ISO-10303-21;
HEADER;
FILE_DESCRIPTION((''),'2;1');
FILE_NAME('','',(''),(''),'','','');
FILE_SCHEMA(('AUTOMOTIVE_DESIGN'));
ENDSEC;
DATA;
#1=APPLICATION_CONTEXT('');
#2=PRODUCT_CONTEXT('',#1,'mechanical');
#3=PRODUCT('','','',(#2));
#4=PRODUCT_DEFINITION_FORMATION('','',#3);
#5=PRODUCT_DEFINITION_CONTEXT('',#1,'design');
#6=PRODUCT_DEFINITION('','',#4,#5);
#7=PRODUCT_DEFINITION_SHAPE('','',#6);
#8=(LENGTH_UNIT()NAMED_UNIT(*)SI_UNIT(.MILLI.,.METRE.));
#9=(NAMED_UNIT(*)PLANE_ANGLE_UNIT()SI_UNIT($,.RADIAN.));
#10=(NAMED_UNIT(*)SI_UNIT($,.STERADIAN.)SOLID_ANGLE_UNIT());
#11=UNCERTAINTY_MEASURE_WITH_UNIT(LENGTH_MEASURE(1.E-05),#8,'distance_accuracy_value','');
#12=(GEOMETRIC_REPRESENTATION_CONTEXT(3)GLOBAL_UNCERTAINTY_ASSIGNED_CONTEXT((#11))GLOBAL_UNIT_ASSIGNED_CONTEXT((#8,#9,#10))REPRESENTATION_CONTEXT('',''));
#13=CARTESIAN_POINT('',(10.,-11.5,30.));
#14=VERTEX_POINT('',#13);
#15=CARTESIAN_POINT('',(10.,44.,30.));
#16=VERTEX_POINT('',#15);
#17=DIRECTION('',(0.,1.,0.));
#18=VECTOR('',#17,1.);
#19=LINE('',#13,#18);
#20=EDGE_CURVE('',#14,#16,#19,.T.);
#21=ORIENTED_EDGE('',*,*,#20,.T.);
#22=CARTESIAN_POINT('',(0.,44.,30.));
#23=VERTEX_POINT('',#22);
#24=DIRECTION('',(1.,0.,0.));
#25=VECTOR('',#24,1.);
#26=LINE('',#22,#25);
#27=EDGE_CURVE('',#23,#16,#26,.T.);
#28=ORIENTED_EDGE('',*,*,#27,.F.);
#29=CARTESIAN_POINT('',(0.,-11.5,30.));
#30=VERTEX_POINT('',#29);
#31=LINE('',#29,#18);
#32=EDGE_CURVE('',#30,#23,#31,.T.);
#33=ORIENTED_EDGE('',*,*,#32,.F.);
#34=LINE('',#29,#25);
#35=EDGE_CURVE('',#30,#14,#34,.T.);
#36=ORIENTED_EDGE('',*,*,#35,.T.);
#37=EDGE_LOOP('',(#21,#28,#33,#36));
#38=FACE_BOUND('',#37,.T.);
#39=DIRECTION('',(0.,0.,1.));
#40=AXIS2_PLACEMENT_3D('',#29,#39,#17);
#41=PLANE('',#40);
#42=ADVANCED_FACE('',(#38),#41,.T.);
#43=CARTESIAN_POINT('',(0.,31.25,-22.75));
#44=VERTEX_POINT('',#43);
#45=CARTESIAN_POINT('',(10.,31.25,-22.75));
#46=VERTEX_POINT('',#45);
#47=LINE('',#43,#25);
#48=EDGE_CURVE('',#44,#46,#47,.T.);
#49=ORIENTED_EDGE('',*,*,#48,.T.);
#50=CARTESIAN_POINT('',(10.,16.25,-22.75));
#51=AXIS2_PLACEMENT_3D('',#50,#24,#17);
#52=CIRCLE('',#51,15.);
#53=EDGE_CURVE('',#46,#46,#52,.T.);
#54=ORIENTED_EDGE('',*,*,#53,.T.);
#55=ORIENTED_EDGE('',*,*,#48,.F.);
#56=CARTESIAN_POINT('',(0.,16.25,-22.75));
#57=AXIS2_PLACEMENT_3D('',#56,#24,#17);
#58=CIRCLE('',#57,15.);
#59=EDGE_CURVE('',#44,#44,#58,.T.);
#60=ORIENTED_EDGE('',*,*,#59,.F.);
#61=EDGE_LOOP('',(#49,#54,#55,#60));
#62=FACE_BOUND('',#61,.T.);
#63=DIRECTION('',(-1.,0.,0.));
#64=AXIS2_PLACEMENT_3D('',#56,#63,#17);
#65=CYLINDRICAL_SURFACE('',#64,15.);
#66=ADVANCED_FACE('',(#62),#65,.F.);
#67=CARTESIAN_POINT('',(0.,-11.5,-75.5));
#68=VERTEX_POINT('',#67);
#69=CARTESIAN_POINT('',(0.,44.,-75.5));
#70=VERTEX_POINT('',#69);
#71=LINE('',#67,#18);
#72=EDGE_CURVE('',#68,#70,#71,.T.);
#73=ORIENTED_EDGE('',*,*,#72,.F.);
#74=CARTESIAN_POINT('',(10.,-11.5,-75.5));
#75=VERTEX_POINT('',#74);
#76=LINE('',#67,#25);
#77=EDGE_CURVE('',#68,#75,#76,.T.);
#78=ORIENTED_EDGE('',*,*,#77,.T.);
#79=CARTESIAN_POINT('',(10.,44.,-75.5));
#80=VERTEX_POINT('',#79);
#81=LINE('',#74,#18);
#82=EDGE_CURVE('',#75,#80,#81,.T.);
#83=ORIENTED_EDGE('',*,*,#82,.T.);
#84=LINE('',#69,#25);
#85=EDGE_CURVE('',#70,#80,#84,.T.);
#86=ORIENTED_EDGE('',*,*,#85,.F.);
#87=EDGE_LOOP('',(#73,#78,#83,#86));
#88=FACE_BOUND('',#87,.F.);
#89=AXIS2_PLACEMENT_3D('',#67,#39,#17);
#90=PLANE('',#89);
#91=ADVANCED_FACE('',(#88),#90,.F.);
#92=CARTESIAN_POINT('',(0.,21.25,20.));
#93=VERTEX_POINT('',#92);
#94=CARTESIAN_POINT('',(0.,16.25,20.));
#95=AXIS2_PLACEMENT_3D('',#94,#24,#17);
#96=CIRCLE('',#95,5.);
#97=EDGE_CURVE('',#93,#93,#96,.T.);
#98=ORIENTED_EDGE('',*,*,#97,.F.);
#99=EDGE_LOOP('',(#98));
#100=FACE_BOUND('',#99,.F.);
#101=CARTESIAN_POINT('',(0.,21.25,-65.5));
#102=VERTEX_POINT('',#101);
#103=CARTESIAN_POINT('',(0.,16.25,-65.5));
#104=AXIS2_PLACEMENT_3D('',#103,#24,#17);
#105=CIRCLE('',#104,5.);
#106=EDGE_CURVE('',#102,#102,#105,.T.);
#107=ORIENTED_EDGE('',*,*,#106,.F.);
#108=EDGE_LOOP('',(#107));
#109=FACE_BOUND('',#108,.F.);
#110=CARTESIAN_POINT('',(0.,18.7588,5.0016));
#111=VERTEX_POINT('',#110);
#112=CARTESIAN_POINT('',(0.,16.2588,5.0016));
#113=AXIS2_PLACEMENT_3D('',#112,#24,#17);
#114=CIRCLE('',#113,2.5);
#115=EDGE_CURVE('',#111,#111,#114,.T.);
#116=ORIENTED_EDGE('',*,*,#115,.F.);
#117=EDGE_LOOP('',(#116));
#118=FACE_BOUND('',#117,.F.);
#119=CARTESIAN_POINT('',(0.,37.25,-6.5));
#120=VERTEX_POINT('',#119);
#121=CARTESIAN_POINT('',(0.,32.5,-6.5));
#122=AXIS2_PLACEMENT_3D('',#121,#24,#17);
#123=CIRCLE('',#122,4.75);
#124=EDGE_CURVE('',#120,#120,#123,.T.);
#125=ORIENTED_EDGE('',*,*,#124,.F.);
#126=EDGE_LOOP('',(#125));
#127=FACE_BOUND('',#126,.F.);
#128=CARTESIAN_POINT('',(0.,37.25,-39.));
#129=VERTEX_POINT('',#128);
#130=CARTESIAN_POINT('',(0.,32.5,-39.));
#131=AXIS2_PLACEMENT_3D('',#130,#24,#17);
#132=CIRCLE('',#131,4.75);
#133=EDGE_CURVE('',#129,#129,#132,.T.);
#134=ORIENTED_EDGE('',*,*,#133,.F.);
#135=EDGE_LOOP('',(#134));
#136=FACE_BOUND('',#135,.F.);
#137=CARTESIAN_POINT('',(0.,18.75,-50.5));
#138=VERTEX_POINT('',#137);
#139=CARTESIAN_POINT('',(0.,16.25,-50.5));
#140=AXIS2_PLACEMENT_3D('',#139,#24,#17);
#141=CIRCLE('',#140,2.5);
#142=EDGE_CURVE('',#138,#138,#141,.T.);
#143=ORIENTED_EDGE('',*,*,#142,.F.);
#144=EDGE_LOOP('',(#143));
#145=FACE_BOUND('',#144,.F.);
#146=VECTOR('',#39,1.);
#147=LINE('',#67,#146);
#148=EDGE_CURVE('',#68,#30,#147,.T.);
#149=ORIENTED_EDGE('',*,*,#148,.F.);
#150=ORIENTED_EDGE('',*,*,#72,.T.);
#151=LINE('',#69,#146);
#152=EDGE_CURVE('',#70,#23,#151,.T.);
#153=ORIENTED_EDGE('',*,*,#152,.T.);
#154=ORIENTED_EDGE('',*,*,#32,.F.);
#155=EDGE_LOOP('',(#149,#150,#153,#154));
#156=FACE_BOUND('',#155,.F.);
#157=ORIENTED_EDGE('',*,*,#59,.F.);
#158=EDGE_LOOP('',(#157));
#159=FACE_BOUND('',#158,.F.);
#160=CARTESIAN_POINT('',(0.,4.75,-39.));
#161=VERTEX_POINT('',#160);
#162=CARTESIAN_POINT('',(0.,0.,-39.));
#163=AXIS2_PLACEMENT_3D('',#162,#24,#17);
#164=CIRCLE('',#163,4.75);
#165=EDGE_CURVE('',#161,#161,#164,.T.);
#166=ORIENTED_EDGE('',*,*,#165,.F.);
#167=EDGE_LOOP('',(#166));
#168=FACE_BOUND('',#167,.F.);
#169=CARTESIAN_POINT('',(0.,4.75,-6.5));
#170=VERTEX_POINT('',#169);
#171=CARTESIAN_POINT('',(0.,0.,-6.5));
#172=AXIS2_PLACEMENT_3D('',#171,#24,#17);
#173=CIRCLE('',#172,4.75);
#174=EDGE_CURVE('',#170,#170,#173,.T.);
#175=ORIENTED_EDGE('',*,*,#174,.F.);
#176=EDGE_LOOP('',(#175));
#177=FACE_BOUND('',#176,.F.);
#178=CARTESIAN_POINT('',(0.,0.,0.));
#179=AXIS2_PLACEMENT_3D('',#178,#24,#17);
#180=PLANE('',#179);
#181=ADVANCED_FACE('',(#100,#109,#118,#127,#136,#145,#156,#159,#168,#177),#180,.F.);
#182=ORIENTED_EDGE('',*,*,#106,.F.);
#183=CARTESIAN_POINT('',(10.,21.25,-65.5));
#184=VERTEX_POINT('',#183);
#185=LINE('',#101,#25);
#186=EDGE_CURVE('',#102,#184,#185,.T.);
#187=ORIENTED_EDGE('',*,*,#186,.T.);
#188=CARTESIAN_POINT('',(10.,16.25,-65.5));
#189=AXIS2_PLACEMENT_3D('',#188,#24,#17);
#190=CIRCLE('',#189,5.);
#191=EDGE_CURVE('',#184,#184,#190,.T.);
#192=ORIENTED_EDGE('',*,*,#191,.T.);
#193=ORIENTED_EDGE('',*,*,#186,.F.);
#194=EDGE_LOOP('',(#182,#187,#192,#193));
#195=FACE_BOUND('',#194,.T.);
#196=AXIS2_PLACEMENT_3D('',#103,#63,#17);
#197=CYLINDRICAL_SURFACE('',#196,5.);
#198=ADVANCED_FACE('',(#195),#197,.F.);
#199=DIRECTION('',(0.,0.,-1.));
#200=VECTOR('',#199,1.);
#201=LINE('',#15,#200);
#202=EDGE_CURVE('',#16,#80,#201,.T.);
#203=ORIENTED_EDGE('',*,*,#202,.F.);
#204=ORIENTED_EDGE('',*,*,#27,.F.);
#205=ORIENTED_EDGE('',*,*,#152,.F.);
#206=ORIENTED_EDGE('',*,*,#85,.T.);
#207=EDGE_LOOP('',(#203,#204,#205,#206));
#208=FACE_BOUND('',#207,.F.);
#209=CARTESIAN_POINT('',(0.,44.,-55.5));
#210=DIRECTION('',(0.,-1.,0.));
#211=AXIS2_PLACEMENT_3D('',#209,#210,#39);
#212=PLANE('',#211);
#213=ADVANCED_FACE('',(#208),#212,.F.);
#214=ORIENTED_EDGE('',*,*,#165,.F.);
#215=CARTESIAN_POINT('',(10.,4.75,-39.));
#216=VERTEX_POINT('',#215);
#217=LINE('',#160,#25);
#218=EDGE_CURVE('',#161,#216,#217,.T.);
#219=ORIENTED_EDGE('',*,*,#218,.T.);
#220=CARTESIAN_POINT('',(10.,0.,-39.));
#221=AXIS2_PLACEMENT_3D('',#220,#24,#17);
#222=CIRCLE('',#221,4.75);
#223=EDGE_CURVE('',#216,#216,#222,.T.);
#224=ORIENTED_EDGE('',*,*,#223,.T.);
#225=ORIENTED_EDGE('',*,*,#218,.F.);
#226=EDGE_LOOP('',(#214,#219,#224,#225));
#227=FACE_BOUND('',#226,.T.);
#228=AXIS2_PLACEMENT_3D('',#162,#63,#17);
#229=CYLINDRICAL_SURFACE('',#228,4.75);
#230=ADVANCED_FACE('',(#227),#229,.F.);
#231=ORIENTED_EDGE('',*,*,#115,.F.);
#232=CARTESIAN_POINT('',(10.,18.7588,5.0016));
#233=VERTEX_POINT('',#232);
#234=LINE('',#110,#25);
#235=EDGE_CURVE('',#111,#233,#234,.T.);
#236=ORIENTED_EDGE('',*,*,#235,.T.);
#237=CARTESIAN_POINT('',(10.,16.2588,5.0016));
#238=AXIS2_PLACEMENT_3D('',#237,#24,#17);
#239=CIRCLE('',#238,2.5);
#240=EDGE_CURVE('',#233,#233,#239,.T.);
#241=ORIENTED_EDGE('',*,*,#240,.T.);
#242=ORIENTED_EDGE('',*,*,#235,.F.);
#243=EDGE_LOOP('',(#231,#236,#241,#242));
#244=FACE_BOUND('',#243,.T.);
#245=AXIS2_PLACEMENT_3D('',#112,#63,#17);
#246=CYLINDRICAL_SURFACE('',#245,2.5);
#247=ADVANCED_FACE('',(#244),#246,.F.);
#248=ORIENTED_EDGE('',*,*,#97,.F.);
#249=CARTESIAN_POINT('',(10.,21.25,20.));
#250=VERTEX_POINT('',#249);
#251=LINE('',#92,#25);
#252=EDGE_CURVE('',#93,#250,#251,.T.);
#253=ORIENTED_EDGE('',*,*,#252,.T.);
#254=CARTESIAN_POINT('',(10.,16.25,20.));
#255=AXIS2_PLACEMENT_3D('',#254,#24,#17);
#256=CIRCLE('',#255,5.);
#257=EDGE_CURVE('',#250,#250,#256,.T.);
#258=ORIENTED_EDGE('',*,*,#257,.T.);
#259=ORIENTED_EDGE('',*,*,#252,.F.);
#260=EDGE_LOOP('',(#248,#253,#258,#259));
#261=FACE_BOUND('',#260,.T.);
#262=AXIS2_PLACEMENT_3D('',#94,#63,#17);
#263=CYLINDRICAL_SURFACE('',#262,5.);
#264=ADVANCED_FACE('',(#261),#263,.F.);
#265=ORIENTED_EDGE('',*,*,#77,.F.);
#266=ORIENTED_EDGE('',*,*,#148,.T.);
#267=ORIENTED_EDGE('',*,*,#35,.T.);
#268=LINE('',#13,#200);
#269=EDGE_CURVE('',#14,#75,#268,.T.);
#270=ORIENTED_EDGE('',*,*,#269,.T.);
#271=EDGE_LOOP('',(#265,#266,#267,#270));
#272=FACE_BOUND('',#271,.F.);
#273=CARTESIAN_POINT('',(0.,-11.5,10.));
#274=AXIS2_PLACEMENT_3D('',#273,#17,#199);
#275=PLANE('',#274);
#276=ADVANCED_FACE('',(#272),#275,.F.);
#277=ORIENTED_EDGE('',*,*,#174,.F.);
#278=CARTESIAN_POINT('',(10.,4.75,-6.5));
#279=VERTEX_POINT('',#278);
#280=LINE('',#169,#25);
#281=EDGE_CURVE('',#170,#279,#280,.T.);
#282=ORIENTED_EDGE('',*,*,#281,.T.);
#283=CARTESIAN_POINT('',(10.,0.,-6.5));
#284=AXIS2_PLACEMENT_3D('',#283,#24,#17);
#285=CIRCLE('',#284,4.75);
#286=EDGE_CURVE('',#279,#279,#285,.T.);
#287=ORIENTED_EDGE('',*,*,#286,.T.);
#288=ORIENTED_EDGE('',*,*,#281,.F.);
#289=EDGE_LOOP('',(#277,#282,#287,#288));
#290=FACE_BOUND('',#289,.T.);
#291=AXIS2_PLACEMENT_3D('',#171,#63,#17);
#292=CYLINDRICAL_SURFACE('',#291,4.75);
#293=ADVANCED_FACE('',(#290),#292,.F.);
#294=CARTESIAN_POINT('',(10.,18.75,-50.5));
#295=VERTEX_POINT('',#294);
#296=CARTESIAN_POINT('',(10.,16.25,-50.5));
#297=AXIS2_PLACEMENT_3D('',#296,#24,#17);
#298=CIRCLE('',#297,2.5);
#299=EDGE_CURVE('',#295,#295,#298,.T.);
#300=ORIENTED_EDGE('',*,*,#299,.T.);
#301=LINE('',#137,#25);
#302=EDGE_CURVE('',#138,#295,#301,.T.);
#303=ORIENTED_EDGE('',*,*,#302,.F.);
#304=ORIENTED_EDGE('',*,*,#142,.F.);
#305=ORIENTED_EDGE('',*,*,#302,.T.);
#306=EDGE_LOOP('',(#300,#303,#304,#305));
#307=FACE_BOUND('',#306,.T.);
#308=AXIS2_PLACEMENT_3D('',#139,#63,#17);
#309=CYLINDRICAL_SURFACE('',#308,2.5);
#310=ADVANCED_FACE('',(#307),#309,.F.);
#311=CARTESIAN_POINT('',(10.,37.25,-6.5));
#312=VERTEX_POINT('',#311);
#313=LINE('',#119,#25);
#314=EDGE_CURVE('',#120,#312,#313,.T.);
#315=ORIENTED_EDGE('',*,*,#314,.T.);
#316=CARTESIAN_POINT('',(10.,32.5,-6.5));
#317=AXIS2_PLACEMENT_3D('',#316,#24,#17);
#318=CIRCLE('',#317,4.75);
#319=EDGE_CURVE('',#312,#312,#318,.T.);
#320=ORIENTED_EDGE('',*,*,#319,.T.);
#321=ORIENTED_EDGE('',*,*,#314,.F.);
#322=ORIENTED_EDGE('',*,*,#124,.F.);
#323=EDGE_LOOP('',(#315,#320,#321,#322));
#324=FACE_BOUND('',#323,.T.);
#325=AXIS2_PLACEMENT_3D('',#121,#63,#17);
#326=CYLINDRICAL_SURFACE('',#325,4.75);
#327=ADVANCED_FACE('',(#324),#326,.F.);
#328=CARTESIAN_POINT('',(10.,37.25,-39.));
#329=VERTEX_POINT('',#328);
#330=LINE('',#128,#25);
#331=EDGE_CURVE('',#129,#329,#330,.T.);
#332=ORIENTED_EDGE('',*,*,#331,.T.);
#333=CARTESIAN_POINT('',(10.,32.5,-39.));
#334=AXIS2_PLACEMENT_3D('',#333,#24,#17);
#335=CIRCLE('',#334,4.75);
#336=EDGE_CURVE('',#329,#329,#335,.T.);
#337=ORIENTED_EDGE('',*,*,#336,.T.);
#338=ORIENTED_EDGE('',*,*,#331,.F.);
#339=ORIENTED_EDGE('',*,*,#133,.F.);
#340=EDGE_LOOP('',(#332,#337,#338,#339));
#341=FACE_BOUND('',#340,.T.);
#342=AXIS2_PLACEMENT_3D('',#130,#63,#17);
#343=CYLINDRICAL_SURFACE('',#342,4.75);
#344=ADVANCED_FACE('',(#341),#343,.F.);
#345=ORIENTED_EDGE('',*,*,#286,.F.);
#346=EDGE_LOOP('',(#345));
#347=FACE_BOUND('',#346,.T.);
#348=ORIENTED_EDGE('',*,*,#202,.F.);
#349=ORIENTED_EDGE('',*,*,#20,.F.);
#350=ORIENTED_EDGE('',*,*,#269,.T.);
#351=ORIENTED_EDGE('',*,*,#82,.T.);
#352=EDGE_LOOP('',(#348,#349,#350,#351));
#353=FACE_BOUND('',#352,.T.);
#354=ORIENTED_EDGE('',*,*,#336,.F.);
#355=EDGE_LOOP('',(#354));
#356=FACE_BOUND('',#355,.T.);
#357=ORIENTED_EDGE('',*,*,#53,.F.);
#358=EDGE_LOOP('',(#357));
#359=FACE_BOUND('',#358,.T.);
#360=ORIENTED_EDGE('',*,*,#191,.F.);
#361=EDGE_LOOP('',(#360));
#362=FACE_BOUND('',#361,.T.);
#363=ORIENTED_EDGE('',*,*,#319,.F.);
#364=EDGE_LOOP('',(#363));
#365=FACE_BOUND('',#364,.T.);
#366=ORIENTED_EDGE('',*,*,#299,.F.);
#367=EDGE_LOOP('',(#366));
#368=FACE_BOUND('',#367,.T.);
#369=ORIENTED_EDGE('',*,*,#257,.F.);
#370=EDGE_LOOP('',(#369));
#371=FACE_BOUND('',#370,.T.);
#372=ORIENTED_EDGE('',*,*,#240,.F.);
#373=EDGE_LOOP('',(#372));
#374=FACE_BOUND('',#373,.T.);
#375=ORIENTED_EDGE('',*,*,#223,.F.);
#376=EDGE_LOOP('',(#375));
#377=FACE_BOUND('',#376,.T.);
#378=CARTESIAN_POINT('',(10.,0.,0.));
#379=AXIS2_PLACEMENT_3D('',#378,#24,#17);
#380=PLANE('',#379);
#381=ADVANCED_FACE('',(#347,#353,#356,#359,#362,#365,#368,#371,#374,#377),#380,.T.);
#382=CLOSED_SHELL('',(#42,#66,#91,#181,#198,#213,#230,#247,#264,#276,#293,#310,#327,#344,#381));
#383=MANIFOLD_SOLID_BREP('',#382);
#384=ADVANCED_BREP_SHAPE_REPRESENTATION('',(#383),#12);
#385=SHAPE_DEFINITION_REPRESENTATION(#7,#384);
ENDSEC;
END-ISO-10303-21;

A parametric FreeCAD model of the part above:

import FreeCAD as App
import Part
import Sketcher
Q = App.Units.Quantity

doc = App.newDocument("Part")
body = doc.addObject("PartDesign::Body", "Body")

sketch1 = doc.addObject("Sketcher::SketchObject", "Sketch")
body.addObject(sketch1)
sketch1.AttachmentSupport = (doc.YZ_Plane, [""])
sketch1.MapMode = "FlatFace"
sketch1.addGeometry([
    Part.LineSegment(App.Vector(44, 30, 0), App.Vector(-11.5, 30, 0)),
    Part.LineSegment(App.Vector(-11.5, 30, 0), App.Vector(-11.5, -75.5, 0)),
    Part.LineSegment(App.Vector(-11.5, -75.5, 0), App.Vector(44, -75.5, 0)),
    Part.LineSegment(App.Vector(44, -75.5, 0), App.Vector(44, 30, 0)),
    Part.Circle(App.Vector(0, -39, 0), App.Vector(0, 0, 1), 4.8),
    Part.Circle(App.Vector(16.2, -50.5, 0), App.Vector(0, 0, 1), 2.5),
    Part.Circle(App.Vector(32.5, -39, 0), App.Vector(0, 0, 1), 4.8),
    Part.Circle(App.Vector(0, -6.5, 0), App.Vector(0, 0, 1), 4.8),
    Part.Circle(App.Vector(16.2, -22.8, 0), App.Vector(0, 0, 1), 15),
    Part.Circle(App.Vector(32.5, -6.5, 0), App.Vector(0, 0, 1), 4.8),
    Part.Circle(App.Vector(16.3, 5, 0), App.Vector(0, 0, 1), 2.5),
    Part.Circle(App.Vector(16.2, -65.5, 0), App.Vector(0, 0, 1), 5),
    Part.Circle(App.Vector(16.2, 20, 0), App.Vector(0, 0, 1), 5),
], False)
sketch1.addConstraint([
    Sketcher.Constraint("Coincident", 0, 2, 1, 1),
    Sketcher.Constraint("Coincident", 1, 2, 2, 1),
    Sketcher.Constraint("Coincident", 2, 2, 3, 1),
    Sketcher.Constraint("Coincident", 3, 2, 0, 1),
    Sketcher.Constraint("Horizontal", 0),
    Sketcher.Constraint("Vertical", 1),
    Sketcher.Constraint("Horizontal", 2),
    Sketcher.Constraint("Vertical", 3),
    Sketcher.Constraint("Equal", 4, 6),
    Sketcher.Constraint("Equal", 6, 7),
    Sketcher.Constraint("Equal", 7, 9),
    Sketcher.Constraint("Equal", 5, 10),
    Sketcher.Constraint("Equal", 11, 12),
    Sketcher.Constraint("PointOnObject", 4, 3, -2),
    Sketcher.Constraint("PointOnObject", 7, 3, -2),
    Sketcher.Constraint("Horizontal", 4, 3, 6, 3),
    Sketcher.Constraint("Horizontal", 7, 3, 9, 3),
    Sketcher.Constraint("Vertical", 5, 3, 8, 3),
    Sketcher.Constraint("Vertical", 6, 3, 9, 3),
    Sketcher.Constraint("Vertical", 8, 3, 11, 3),
    Sketcher.Constraint("Vertical", 11, 3, 12, 3),
    Sketcher.Constraint("Diameter", 11, Q("10 mm")),
    Sketcher.Constraint("Diameter", 5, Q("5 mm")),
    Sketcher.Constraint("Diameter", 8, Q("30 mm")),
    Sketcher.Constraint("DistanceY", -1, 1, 12, 3, Q("20 mm")),
    Sketcher.Constraint("DistanceY", 12, 3, 0, 2, Q("10 mm")),
    Sketcher.Constraint("DistanceY", 1, 2, 11, 3, Q("10 mm")),
    Sketcher.Constraint("Diameter", 4, Q("9.5 mm")),
    Sketcher.Constraint("DistanceX", 0, 2, 0, 1, Q("55.5 mm")),
    Sketcher.Constraint("DistanceY", 1, 2, 1, 1, Q("105.5 mm")),
    Sketcher.Constraint("DistanceY", 4, 3, -1, 1, Q("39 mm")),
    Sketcher.Constraint("DistanceX", -1, 1, 2, 2, Q("44 mm")),
    Sketcher.Constraint("DistanceY", 5, 3, 7, 3, Q("44 mm")),
    Sketcher.Constraint("DistanceY", 11, 3, 5, 3, Q("15 mm")),
    Sketcher.Constraint("DistanceX", 0, 2, 9, 3, Q("44 mm")),
    Sketcher.Constraint("DistanceX", -1, 1, 5, 3, Q("16.25 mm")),
    Sketcher.Constraint("DistanceY", 8, 3, -1, 1, Q("22.75 mm")),
    Sketcher.Constraint("DistanceX", -1, 1, 10, 3, Q("16.2588 mm")),
    Sketcher.Constraint("DistanceY", -1, 1, 10, 3, Q("5.0016 mm")),
])
pad1 = doc.addObject("PartDesign::Pad", "Pad")
body.addObject(pad1)
pad1.Profile = sketch1
pad1.Length = 10

doc.recompute()
